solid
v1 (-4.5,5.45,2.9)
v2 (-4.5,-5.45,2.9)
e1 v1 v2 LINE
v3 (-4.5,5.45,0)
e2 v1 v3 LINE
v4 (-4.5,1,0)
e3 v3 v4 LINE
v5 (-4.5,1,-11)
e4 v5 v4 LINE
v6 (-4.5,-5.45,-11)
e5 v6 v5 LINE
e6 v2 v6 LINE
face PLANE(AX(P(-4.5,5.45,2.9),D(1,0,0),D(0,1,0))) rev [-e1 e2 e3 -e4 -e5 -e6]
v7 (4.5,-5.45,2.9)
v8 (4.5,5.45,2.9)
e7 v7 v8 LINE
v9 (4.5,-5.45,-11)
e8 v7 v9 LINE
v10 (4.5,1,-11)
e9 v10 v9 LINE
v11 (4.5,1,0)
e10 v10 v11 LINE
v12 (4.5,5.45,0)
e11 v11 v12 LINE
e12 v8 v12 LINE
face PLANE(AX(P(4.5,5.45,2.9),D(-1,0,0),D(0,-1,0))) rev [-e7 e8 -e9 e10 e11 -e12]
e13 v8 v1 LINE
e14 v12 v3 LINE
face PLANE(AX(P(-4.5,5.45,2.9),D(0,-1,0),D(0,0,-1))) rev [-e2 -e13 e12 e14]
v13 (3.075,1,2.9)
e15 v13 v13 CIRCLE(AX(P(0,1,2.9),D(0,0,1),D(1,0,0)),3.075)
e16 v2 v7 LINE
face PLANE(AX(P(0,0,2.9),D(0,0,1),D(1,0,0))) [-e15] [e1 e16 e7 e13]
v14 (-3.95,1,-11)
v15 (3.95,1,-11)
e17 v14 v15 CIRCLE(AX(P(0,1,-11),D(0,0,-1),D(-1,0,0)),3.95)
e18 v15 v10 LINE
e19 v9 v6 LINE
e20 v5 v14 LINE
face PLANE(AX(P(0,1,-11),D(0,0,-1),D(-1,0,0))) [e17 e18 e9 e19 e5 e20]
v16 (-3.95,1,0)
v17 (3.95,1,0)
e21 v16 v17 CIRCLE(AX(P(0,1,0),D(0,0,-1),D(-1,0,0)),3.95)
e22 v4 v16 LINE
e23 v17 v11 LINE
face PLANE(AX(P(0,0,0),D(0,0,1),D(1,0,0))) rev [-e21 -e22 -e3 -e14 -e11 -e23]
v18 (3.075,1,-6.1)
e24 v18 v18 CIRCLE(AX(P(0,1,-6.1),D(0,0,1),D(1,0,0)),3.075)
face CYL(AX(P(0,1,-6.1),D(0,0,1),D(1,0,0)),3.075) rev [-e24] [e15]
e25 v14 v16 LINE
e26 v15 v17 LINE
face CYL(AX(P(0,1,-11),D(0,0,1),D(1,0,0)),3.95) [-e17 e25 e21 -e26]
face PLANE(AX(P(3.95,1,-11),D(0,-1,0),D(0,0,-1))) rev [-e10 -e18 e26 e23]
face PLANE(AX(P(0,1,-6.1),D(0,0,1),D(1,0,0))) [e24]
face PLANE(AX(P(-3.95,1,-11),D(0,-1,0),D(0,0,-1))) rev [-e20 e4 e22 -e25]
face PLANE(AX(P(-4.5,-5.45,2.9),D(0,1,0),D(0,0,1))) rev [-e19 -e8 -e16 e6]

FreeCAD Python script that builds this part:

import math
import FreeCAD as App
import Part
import Sketcher

V = App.Vector

doc = App.newDocument("Part")
params = doc.addObject("Spreadsheet::Sheet", "Params")
for row, (alias, value) in enumerate([
    ("sketch1_width", "9 mm"),
    ("sketch1_height", "10.9 mm"),
    ("pad1_length", "2.9 mm"),
    ("sketch2_width", "9 mm"),
    ("sketch2_radius", "3.95 mm"),
    ("sketch2_height", "6.45 mm"),
    ("pad2_length", "11 mm"),
    ("sketch3_diameter", "6.15 mm"),
    ("pocket1_length", "9 mm"),
], start=1):
    params.set(f"A{row}", alias)
    params.set(f"B{row}", "=" + value)
    params.setAlias(f"B{row}", alias)

body = doc.addObject("PartDesign::Body", "Body")

sketch1 = body.newObject("Sketcher::SketchObject", "Sketch")
sketch1.AttachmentSupport = (doc.getObject("XY_Plane"), [""])
sketch1.MapMode = "FlatFace"
sketch1.addGeometry([
    Part.LineSegment(V(-4, 5, 0), V(-4, -5, 0)),
    Part.LineSegment(V(-4, -5, 0), V(4, -5, 0)),
    Part.LineSegment(V(4, -5, 0), V(4, 5, 0)),
    Part.LineSegment(V(4, 5, 0), V(-4, 5, 0)),
], False)
sketch1.addConstraint([
    Sketcher.Constraint("Coincident", 0, 2, 1, 1),
    Sketcher.Constraint("Coincident", 1, 2, 2, 1),
    Sketcher.Constraint("Coincident", 2, 2, 3, 1),
    Sketcher.Constraint("Coincident", 3, 2, 0, 1),
    Sketcher.Constraint("Vertical", 0),
    Sketcher.Constraint("Horizontal", 1),
    Sketcher.Constraint("Vertical", 2),
    Sketcher.Constraint("Horizontal", 3),
    Sketcher.Constraint("Symmetric", 0, 2, 2, 2, -1, 1),
    Sketcher.Constraint("DistanceX", 1, 1, 1, 2, 9.0),
    Sketcher.Constraint("DistanceY", 0, 2, 0, 1, 10.9),
])
sketch1.setExpression("Constraints[9]", "Params.sketch1_width")
sketch1.setExpression("Constraints[10]", "Params.sketch1_height")
pad1 = body.newObject("PartDesign::Pad", "Pad")
pad1.Profile = sketch1
pad1.setExpression("Length", "Params.pad1_length")

sketch2 = body.newObject("Sketcher::SketchObject", "Sketch001")
sketch2.AttachmentSupport = (doc.getObject("XY_Plane"), [""])
sketch2.MapMode = "FlatFace"
sketch2.addGeometry([
    Part.LineSegment(V(4, 1, 0), V(4.5, 1, 0)),
    Part.LineSegment(V(4.5, 1, 0), V(4.5, -5.5, 0)),
    Part.LineSegment(V(4.5, -5.5, 0), V(-4.5, -5.5, 0)),
    Part.LineSegment(V(-4.5, -5.5, 0), V(-4.5, 1, 0)),
    Part.LineSegment(V(-4.5, 1, 0), V(-4, 1, 0)),
    Part.ArcOfCircle(Part.Circle(V(0, 1, 0), V(0, 0, 1), 4), math.radians(0), math.radians(180)),
], False)
sketch2.addConstraint([
    Sketcher.Constraint("Coincident", 0, 2, 1, 1),
    Sketcher.Constraint("Coincident", 1, 2, 2, 1),
    Sketcher.Constraint("Coincident", 2, 2, 3, 1),
    Sketcher.Constraint("Coincident", 3, 2, 4, 1),
    Sketcher.Constraint("Coincident", 4, 2, 5, 2),
    Sketcher.Constraint("Coincident", 5, 1, 0, 1),
    Sketcher.Constraint("Horizontal", 0),
    Sketcher.Constraint("Vertical", 1),
    Sketcher.Constraint("Horizontal", 2),
    Sketcher.Constraint("Vertical", 3),
    Sketcher.Constraint("Horizontal", 4),
    Sketcher.Constraint("Symmetric", 0, 2, 3, 2, -2),
    Sketcher.Constraint("PointOnObject", 5, 3, -2),
    Sketcher.Constraint("Horizontal", 5, 3, 0, 2),
    Sketcher.Constraint("DistanceX", 2, 2, 2, 1, 9.0),
    Sketcher.Constraint("Radius", 5, 3.95),
    Sketcher.Constraint("DistanceY", -1, 1, 5, 3, 1.0),
    Sketcher.Constraint("DistanceY", 1, 2, 1, 1, 6.45),
])
sketch2.setExpression("Constraints[14]", "Params.sketch2_width")
sketch2.setExpression("Constraints[15]", "Params.sketch2_radius")
sketch2.setExpression("Constraints[17]", "Params.sketch2_height")
pad2 = body.newObject("PartDesign::Pad", "Pad001")
pad2.Profile = sketch2
pad2.setExpression("Length", "Params.pad2_length")
pad2.Reversed = True

sketch3 = body.newObject("Sketcher::SketchObject", "Sketch002")
sketch3.AttachmentSupport = (doc.getObject("XY_Plane"), [""])
sketch3.MapMode = "FlatFace"
sketch3.AttachmentOffset = App.Placement(V(0, 0, 2.9), App.Rotation())
sketch3.addGeometry(Part.Circle(V(0, 1, 0), V(0, 0, 1), 3.1), False)
sketch3.addConstraint([
    Sketcher.Constraint("PointOnObject", 0, 3, -2),
    Sketcher.Constraint("Diameter", 0, 6.15),
    Sketcher.Constraint("DistanceY", -1, 1, 0, 3, 1.0),
])
sketch3.setExpression("Constraints[1]", "Params.sketch3_diameter")
pocket1 = body.newObject("PartDesign::Pocket", "Pocket")
pocket1.Profile = sketch3
pocket1.setExpression("Length", "Params.pocket1_length")

doc.recompute()
